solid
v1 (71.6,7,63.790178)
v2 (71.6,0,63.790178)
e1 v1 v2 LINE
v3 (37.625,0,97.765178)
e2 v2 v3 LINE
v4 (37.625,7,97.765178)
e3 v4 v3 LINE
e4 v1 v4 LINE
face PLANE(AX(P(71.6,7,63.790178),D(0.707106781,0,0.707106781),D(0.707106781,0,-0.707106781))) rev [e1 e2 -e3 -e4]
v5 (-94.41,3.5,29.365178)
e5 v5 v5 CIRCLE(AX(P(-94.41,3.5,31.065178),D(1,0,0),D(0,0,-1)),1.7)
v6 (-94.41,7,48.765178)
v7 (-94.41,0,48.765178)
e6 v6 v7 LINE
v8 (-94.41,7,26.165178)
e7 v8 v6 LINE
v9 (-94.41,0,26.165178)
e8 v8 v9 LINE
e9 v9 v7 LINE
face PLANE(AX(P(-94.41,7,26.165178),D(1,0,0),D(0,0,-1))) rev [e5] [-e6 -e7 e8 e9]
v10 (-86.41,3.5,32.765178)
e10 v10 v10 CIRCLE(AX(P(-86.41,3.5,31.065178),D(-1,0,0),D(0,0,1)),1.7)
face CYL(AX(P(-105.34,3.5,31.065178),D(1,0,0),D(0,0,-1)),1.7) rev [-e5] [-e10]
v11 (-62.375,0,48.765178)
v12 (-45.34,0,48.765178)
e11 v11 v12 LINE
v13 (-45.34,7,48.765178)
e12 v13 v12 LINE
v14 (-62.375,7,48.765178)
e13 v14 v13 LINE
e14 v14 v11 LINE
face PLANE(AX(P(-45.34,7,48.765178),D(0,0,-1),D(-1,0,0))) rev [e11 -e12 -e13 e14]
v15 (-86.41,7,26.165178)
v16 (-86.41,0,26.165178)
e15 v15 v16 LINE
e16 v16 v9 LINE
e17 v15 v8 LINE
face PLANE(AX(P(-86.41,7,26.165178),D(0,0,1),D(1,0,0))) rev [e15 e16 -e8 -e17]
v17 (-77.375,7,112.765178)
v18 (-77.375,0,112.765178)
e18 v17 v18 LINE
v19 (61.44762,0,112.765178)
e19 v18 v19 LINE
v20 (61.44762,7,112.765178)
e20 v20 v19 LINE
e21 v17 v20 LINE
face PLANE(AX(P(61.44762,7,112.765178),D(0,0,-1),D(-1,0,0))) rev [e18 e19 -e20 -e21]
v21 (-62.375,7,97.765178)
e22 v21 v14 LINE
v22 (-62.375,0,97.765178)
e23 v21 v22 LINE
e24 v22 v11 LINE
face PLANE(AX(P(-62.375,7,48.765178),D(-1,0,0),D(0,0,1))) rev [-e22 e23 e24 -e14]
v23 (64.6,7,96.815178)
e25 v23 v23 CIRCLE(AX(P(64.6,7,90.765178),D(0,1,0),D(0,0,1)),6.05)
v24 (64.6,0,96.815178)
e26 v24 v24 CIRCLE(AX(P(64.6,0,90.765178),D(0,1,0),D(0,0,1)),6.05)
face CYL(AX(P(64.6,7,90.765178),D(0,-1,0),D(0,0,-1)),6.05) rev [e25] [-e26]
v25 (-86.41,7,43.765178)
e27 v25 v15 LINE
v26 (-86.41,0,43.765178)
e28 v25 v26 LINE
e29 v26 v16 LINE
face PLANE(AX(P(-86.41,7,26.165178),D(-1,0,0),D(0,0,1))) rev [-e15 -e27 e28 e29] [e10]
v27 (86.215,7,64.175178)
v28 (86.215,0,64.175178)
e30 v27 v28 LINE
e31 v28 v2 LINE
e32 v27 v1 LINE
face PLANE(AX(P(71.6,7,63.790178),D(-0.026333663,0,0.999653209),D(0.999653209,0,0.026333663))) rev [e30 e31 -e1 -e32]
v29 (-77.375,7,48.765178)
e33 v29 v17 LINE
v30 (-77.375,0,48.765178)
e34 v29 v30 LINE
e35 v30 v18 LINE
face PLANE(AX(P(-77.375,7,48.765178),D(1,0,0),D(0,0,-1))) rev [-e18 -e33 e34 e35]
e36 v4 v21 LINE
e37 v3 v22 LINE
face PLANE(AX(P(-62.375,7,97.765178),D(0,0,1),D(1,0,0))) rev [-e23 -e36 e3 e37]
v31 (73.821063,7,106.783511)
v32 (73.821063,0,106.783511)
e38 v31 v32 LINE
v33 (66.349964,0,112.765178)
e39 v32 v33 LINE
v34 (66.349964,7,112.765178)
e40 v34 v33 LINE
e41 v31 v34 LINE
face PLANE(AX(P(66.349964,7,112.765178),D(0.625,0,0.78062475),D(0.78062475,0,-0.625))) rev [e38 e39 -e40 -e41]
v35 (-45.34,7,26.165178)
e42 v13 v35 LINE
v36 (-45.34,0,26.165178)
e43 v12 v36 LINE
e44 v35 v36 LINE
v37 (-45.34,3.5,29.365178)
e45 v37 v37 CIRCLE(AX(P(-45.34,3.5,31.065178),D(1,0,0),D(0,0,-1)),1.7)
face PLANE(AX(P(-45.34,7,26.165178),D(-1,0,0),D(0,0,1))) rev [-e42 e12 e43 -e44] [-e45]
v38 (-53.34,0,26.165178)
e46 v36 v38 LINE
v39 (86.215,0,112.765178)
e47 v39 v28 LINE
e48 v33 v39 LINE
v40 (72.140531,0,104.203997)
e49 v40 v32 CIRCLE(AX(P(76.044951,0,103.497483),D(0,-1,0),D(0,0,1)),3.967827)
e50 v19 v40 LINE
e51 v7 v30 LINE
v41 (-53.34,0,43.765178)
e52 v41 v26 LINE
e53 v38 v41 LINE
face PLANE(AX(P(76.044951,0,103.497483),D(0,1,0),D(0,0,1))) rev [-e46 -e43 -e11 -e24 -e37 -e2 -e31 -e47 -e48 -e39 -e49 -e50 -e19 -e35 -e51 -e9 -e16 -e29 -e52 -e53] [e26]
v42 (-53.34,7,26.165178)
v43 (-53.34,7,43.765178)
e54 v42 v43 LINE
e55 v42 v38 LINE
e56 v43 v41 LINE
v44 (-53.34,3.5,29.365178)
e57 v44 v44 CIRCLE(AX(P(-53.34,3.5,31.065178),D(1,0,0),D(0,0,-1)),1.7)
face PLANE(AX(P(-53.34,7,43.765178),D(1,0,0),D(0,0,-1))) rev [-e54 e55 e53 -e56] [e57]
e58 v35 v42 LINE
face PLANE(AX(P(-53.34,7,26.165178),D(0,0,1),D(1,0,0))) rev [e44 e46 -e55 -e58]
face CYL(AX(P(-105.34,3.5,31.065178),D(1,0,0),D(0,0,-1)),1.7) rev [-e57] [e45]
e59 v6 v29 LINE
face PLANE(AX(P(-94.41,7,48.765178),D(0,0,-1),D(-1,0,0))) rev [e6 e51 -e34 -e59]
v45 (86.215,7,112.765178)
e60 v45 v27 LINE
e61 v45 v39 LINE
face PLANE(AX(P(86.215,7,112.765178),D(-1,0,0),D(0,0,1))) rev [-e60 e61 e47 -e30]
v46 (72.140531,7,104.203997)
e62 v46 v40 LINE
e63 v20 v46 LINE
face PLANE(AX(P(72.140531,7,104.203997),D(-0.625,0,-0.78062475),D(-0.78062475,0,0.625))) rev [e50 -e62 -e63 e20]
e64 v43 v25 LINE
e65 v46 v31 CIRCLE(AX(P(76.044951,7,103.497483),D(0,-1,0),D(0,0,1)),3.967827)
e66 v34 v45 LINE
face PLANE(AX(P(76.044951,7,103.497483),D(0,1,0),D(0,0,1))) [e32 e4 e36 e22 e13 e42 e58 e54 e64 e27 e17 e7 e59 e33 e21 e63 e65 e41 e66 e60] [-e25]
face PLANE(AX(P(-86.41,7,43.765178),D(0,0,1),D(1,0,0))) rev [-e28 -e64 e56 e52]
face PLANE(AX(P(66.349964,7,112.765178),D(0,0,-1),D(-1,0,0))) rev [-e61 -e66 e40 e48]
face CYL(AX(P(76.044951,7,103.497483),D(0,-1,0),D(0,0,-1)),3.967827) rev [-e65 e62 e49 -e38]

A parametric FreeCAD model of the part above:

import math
import FreeCAD as App
import Part
import Sketcher

V = App.Vector
Q = App.Units.Quantity

doc = App.newDocument("Part")
params = doc.addObject("Spreadsheet::Sheet", "Params")
for row, (alias, value) in enumerate([
    ("sketch1_diameter", "12.1 mm"),
    ("sketch1_width", "8 mm"),
    ("sketch1_width2", "100 mm"),
    ("sketch1_height", "64 mm"),
    ("sketch1_height2", "49 mm"),
    ("pad1_length", "7 mm"),
    ("sketch2_diameter", "3.4 mm"),
    ("pocket1_length", "60 mm"),
], start=1):
    params.set(f"A{row}", alias)
    params.set(f"B{row}", "=" + value)
    params.setAlias(f"B{row}", alias)

body = doc.addObject("PartDesign::Body", "Body")

# Sketch on XZ plane
sketch1 = doc.addObject("Sketcher::SketchObject", "Sketch")
body.addObject(sketch1)
sketch1.AttachmentSupport = (doc.XZ_Plane, [""])
sketch1.MapMode = "FlatFace"
sketch1.addGeometry(Part.LineSegment(V(-86.4, 43.8, 0), V(-86.4, 26.2, 0)), False)
sketch1.addGeometry(Part.LineSegment(V(-86.4, 26.2, 0), V(-94.4, 26.2, 0)), False)
sketch1.addGeometry(Part.LineSegment(V(-94.4, 26.2, 0), V(-94.4, 48.8, 0)), False)
sketch1.addGeometry(Part.LineSegment(V(-94.4, 48.8, 0), V(-77.4, 48.8, 0)), False)
sketch1.addGeometry(Part.LineSegment(V(-77.4, 48.8, 0), V(-77.4, 112.8, 0)), False)
sketch1.addGeometry(Part.LineSegment(V(-77.4, 112.8, 0), V(61.4, 112.8, 0)), False)
sketch1.addGeometry(Part.LineSegment(V(61.4, 112.8, 0), V(72.1, 104.2, 0)), False)
sketch1.addGeometry(Part.ArcOfCircle(Part.Circle(V(76, 103.5, 0), V(0, 0, 1), 4), math.radians(170), math.radians(484)), False)
sketch1.addGeometry(Part.LineSegment(V(73.8, 106.8, 0), V(66.3, 112.8, 0)), False)
sketch1.addGeometry(Part.LineSegment(V(66.3, 112.8, 0), V(86.2, 112.8, 0)), False)
sketch1.addGeometry(Part.LineSegment(V(86.2, 112.8, 0), V(86.2, 64.2, 0)), False)
sketch1.addGeometry(Part.LineSegment(V(86.2, 64.2, 0), V(71.6, 63.8, 0)), False)
sketch1.addGeometry(Part.LineSegment(V(71.6, 63.8, 0), V(37.6, 97.8, 0)), False)
sketch1.addGeometry(Part.LineSegment(V(37.6, 97.8, 0), V(-62.4, 97.8, 0)), False)
sketch1.addGeometry(Part.LineSegment(V(-62.4, 97.8, 0), V(-62.4, 48.8, 0)), False)
sketch1.addGeometry(Part.LineSegment(V(-62.4, 48.8, 0), V(-45.3, 48.8, 0)), False)
sketch1.addGeometry(Part.LineSegment(V(-45.3, 48.8, 0), V(-45.3, 26.2, 0)), False)
sketch1.addGeometry(Part.LineSegment(V(-45.3, 26.2, 0), V(-53.3, 26.2, 0)), False)
sketch1.addGeometry(Part.LineSegment(V(-53.3, 26.2, 0), V(-53.3, 43.8, 0)), False)
sketch1.addGeometry(Part.LineSegment(V(-53.3, 43.8, 0), V(-86.4, 43.8, 0)), False)
sketch1.addGeometry(Part.Circle(V(64.6, 90.8, 0), V(0, 0, 1), 6), False)
sketch1.addConstraint(Sketcher.Constraint("Coincident", 0, 2, 1, 1))
sketch1.addConstraint(Sketcher.Constraint("Coincident", 1, 2, 2, 1))
sketch1.addConstraint(Sketcher.Constraint("Coincident", 2, 2, 3, 1))
sketch1.addConstraint(Sketcher.Constraint("Coincident", 3, 2, 4, 1))
sketch1.addConstraint(Sketcher.Constraint("Coincident", 4, 2, 5, 1))
sketch1.addConstraint(Sketcher.Constraint("Coincident", 5, 2, 6, 1))
sketch1.addConstraint(Sketcher.Constraint("Coincident", 6, 2, 7, 1))
sketch1.addConstraint(Sketcher.Constraint("Coincident", 7, 2, 8, 1))
sketch1.addConstraint(Sketcher.Constraint("Coincident", 8, 2, 9, 1))
sketch1.addConstraint(Sketcher.Constraint("Coincident", 9, 2, 10, 1))
sketch1.addConstraint(Sketcher.Constraint("Coincident", 10, 2, 11, 1))
sketch1.addConstraint(Sketcher.Constraint("Coincident", 11, 2, 12, 1))
sketch1.addConstraint(Sketcher.Constraint("Coincident", 12, 2, 13, 1))
sketch1.addConstraint(Sketcher.Constraint("Coincident", 13, 2, 14, 1))
sketch1.addConstraint(Sketcher.Constraint("Coincident", 14, 2, 15, 1))
sketch1.addConstraint(Sketcher.Constraint("Coincident", 15, 2, 16, 1))
sketch1.addConstraint(Sketcher.Constraint("Coincident", 16, 2, 17, 1))
sketch1.addConstraint(Sketcher.Constraint("Coincident", 17, 2, 18, 1))
sketch1.addConstraint(Sketcher.Constraint("Coincident", 18, 2, 19, 1))
sketch1.addConstraint(Sketcher.Constraint("Coincident", 19, 2, 0, 1))
sketch1.addConstraint(Sketcher.Constraint("Vertical", 0))
sketch1.addConstraint(Sketcher.Constraint("Horizontal", 1))
sketch1.addConstraint(Sketcher.Constraint("Vertical", 2))
sketch1.addConstraint(Sketcher.Constraint("Horizontal", 3))
sketch1.addConstraint(Sketcher.Constraint("Vertical", 4))
sketch1.addConstraint(Sketcher.Constraint("Horizontal", 5))
sketch1.addConstraint(Sketcher.Constraint("Horizontal", 9))
sketch1.addConstraint(Sketcher.Constraint("Vertical", 10))
sketch1.addConstraint(Sketcher.Constraint("Horizontal", 13))
sketch1.addConstraint(Sketcher.Constraint("Vertical", 14))
sketch1.addConstraint(Sketcher.Constraint("Horizontal", 15))
sketch1.addConstraint(Sketcher.Constraint("Vertical", 16))
sketch1.addConstraint(Sketcher.Constraint("Horizontal", 17))
sketch1.addConstraint(Sketcher.Constraint("Vertical", 18))
sketch1.addConstraint(Sketcher.Constraint("Horizontal", 19))
sketch1.addConstraint(Sketcher.Constraint("Parallel", 6, 8))
sketch1.addConstraint(Sketcher.Constraint("Horizontal", 5, 2, 8, 2))
sketch1.addConstraint(Sketcher.Constraint("Horizontal", 3, 2, 14, 2))
sketch1.addConstraint(Sketcher.Constraint("Horizontal", 1, 2, 16, 2))
sketch1.addConstraint(Sketcher.Constraint("Equal", 3, 15))
sketch1.addConstraint(Sketcher.Constraint("Equal", 1, 17))
sketch1.addConstraint(Sketcher.Constraint("Diameter", 20, 12.1))
sketch1.addConstraint(Sketcher.Constraint("DistanceX", 1, 2, 1, 1, 8.0))
sketch1.addConstraint(Sketcher.Constraint("DistanceX", 13, 2, 13, 1, 100.0))
sketch1.addConstraint(Sketcher.Constraint("DistanceY", 4, 1, 4, 2, 64.0))
sketch1.addConstraint(Sketcher.Constraint("DistanceY", 14, 2, 14, 1, 49.0))
sketch1.addConstraint(Sketcher.Constraint("Angle", 12, Q("135 deg")))
sketch1.addConstraint(Sketcher.Constraint("DistanceY", 0, 2, 0, 1, 17.6))
sketch1.addConstraint(Sketcher.Constraint("DistanceY", 2, 1, 2, 2, 22.6))
sketch1.addConstraint(Sketcher.Constraint("DistanceY", 2, 2, 20, 3, 42.0))
sketch1.addConstraint(Sketcher.Constraint("DistanceX", 20, 3, 11, 2, 7.0))
sketch1.addConstraint(Sketcher.Constraint("DistanceX", 4, 2, 13, 2, 15.0))
sketch1.addConstraint(Sketcher.Constraint("DistanceX", 19, 2, 19, 1, 33.07))
sketch1.addConstraint(Sketcher.Constraint("DistanceY", 10, 2, 10, 1, 48.59))
sketch1.addConstraint(Sketcher.Constraint("DistanceX", -1, 1, 20, 3, 64.6))
sketch1.addConstraint(Sketcher.Constraint("DistanceX", 0, 2, -1, 1, 86.41))
sketch1.addConstraint(Sketcher.Constraint("DistanceX", -1, 1, 9, 2, 86.215))
sketch1.addConstraint(Sketcher.Constraint("Radius", 7, 3.967827))
sketch1.addConstraint(Sketcher.Constraint("DistanceX", 5, 1, 5, 2, 138.82262))
sketch1.addConstraint(Sketcher.Constraint("DistanceX", 8, 2, 7, 2, 7.4711))
sketch1.addConstraint(Sketcher.Constraint("Distance", 6, 13.697889))
sketch1.addConstraint(Sketcher.Constraint("DistanceX", 9, 1, 9, 2, 19.865036))
sketch1.addConstraint(Sketcher.Constraint("DistanceX", -1, 1, 7, 3, 76.044951))
sketch1.addConstraint(Sketcher.Constraint("DistanceY", -1, 1, 20, 3, 90.765178))
sketch1.setExpression("Constraints[41]", "Params.sketch1_diameter")
sketch1.setExpression("Constraints[42]", "Params.sketch1_width")
sketch1.setExpression("Constraints[43]", "Params.sketch1_width2")
sketch1.setExpression("Constraints[44]", "Params.sketch1_height")
sketch1.setExpression("Constraints[45]", "Params.sketch1_height2")
pad1 = doc.addObject("PartDesign::Pad", "Pad")
body.addObject(pad1)
pad1.Profile = sketch1
pad1.setExpression("Length", "Params.pad1_length")
pad1.Reversed = True

# Sketch on YZ plane
sketch2 = doc.addObject("Sketcher::SketchObject", "Sketch001")
body.addObject(sketch2)
sketch2.AttachmentSupport = (doc.YZ_Plane, [""])
sketch2.MapMode = "FlatFace"
sketch2.AttachmentOffset = App.Placement(V(0, 0, -45.34), App.Rotation())
sketch2.addGeometry(Part.Circle(V(3.5, 31.1, 0), V(0, 0, 1), 1.7), False)
sketch2.addConstraint(Sketcher.Constraint("Diameter", 0, 3.4))
sketch2.addConstraint(Sketcher.Constraint("DistanceX", -1, 1, 0, 3, 3.5))
sketch2.addConstraint(Sketcher.Constraint("DistanceY", -1, 1, 0, 3, 31.065178))
sketch2.setExpression("Constraints[0]", "Params.sketch2_diameter")
pocket1 = doc.addObject("PartDesign::Pocket", "Pocket")
body.addObject(pocket1)
pocket1.Profile = sketch2
pocket1.setExpression("Length", "Params.pocket1_length")

doc.recompute()
